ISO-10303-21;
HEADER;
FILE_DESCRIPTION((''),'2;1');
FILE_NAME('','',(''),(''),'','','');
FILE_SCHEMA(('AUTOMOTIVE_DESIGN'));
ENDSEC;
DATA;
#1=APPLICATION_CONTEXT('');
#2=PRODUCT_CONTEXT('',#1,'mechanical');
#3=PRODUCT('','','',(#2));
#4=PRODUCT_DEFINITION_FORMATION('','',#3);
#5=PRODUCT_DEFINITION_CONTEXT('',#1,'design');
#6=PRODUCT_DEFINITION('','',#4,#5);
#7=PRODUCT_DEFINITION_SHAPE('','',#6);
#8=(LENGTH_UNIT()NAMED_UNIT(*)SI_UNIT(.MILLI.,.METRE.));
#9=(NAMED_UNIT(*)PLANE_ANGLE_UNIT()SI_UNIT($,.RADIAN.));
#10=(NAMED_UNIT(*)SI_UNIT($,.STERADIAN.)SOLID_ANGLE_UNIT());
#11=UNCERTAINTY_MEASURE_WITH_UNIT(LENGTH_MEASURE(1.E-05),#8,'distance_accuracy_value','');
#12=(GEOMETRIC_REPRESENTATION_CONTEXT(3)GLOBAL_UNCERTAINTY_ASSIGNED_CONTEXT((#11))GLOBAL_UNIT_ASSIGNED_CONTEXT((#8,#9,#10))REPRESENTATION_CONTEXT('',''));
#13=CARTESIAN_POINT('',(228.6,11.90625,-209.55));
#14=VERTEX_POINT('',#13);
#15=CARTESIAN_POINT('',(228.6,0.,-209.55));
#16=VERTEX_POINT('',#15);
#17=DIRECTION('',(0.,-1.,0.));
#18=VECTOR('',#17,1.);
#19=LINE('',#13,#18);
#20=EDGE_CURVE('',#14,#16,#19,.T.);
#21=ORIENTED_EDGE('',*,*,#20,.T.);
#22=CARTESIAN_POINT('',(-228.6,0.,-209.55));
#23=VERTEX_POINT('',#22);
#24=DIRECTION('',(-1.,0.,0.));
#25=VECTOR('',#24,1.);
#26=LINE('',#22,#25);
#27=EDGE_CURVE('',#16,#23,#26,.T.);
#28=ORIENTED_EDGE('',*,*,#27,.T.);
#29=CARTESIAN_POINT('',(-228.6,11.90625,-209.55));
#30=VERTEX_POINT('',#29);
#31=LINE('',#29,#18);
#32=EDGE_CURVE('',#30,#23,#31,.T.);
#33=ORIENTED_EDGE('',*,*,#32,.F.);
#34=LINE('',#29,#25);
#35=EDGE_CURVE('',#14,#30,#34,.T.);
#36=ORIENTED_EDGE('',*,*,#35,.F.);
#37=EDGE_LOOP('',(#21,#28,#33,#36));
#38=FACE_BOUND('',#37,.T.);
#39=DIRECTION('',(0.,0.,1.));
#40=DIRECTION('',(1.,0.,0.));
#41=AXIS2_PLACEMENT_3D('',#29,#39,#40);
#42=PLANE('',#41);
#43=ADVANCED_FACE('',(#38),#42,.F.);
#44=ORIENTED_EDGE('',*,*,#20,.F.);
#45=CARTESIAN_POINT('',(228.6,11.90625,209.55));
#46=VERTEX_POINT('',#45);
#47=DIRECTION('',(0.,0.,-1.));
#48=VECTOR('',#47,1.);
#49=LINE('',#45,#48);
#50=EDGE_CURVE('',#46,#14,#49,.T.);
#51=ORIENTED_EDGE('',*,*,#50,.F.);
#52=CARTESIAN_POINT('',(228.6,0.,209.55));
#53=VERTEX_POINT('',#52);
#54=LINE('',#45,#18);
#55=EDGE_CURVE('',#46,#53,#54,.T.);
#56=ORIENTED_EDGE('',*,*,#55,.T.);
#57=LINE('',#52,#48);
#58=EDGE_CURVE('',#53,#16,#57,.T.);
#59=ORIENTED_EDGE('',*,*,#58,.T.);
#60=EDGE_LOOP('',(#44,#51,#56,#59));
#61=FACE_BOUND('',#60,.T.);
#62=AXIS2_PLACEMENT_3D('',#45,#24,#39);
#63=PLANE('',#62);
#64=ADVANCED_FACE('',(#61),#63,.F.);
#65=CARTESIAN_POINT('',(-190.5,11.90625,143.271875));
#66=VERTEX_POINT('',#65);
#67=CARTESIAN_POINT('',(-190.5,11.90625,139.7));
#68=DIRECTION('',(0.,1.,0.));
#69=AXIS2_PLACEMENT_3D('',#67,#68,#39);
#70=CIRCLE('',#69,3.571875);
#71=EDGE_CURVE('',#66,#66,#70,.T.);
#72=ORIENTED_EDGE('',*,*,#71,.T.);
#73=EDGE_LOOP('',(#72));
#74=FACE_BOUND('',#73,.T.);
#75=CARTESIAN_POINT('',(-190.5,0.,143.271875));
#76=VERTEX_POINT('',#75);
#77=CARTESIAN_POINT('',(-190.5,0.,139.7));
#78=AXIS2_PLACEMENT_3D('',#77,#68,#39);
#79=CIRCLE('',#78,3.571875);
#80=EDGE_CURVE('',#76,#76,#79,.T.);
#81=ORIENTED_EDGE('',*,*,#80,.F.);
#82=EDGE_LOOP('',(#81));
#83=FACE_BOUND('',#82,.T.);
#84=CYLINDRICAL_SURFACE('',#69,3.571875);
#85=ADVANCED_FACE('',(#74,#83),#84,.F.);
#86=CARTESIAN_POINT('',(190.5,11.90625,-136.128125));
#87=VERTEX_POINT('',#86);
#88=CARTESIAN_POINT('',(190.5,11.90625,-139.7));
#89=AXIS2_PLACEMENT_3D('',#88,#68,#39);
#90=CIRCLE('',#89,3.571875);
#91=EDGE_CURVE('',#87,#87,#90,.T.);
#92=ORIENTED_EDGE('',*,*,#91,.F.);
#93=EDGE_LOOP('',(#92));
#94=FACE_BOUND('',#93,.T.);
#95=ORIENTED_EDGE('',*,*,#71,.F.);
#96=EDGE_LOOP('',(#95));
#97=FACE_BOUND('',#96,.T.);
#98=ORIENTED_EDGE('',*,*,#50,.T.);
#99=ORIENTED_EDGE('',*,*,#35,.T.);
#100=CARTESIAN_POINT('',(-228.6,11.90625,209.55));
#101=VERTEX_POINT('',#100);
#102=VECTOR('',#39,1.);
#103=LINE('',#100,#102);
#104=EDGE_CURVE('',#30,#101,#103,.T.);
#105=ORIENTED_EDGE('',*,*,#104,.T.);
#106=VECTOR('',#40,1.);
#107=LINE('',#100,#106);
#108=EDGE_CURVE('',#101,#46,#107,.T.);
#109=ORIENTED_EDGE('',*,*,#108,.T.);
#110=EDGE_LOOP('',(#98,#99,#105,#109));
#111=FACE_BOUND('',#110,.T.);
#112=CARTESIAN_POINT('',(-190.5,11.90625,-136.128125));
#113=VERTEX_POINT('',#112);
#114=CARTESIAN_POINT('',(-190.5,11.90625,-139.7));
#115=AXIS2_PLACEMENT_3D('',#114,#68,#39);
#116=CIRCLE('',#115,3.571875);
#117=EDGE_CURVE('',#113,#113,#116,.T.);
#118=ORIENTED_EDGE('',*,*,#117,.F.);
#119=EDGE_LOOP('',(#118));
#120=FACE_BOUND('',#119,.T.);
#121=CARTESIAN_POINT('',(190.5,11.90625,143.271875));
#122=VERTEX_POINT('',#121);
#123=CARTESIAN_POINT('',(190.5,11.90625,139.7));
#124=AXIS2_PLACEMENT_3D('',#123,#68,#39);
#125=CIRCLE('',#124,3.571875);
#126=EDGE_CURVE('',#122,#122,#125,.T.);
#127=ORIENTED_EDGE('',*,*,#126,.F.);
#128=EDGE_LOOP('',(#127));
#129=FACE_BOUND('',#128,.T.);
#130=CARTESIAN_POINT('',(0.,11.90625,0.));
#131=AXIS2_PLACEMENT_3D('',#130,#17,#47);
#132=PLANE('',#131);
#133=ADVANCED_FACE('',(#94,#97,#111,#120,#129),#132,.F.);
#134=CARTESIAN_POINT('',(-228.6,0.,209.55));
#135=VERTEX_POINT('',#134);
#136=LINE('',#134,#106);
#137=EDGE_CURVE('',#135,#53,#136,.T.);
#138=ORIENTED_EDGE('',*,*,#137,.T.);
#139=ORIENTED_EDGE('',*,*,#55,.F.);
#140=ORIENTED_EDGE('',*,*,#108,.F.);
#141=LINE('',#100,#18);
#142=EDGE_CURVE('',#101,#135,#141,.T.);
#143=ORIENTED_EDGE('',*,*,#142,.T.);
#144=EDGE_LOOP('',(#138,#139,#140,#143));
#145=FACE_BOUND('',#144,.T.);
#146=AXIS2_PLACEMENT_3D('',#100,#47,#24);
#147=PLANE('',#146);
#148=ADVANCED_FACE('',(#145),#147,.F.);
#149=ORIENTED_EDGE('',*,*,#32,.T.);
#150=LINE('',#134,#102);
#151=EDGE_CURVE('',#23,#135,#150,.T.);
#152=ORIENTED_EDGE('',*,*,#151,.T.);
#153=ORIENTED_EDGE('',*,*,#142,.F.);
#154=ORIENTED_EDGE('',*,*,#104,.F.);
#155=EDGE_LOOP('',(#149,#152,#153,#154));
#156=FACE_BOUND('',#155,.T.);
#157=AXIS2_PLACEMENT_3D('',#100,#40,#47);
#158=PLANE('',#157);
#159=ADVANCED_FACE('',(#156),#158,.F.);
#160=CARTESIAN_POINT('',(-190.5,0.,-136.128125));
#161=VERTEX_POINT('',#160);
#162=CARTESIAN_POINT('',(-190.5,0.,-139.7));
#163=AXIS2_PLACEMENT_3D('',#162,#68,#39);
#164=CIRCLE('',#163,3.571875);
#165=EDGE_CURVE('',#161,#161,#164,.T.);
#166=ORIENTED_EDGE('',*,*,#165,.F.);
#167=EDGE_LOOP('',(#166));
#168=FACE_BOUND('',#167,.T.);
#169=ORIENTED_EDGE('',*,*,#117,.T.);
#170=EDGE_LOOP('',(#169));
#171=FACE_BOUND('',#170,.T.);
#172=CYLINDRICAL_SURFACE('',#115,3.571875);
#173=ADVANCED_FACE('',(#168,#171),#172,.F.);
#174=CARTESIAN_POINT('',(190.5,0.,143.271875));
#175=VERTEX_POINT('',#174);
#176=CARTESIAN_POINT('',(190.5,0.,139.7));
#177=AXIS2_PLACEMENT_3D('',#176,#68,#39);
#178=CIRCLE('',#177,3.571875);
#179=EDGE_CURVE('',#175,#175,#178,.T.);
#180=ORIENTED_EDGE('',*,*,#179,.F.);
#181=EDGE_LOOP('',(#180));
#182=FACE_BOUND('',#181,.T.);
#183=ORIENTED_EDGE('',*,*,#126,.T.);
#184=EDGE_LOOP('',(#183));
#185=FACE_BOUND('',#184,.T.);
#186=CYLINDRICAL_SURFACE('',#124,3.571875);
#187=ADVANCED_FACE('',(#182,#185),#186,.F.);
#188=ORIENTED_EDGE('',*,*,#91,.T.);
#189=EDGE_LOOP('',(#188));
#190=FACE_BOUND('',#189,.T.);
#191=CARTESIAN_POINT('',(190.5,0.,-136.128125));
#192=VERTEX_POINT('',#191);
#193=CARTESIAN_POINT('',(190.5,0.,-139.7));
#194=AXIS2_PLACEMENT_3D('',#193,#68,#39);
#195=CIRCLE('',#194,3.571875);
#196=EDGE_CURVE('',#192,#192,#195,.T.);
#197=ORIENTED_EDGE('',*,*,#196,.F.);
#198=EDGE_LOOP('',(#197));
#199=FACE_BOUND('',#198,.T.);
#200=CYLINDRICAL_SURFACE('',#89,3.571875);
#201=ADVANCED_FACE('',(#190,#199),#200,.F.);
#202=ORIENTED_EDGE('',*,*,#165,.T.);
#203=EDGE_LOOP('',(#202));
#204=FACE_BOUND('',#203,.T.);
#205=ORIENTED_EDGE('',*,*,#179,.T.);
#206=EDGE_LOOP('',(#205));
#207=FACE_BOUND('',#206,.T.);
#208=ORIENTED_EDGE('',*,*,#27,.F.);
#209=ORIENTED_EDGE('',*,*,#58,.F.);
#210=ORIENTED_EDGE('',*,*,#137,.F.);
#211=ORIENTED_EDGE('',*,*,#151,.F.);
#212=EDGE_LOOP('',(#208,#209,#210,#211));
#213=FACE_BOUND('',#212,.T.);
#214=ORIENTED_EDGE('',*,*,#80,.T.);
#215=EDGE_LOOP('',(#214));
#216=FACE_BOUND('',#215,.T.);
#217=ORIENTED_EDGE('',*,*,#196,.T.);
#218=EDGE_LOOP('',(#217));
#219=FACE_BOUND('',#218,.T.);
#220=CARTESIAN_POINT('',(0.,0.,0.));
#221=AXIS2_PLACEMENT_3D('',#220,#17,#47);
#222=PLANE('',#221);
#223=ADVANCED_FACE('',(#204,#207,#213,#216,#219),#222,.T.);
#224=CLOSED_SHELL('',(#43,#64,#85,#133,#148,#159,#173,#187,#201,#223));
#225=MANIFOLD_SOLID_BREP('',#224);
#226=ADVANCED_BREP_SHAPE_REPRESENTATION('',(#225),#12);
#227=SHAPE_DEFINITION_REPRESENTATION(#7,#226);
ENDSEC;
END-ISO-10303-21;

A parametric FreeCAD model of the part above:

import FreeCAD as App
import Part
import Sketcher
Q = App.Units.Quantity


def add_polygon(sketch, points):
    """Adds a closed chain of lines whose ends are joined by coincident constraints."""
    first, n = sketch.GeometryCount, len(points)
    for a, b in zip(points, points[1:] + points[:1]):
        sketch.addGeometry(Part.LineSegment(App.Vector(*a, 0), App.Vector(*b, 0)), False)
    for i in range(n):
        sketch.addConstraint(Sketcher.Constraint("Coincident", first + i, 2, first + (i + 1) % n, 1))

doc = App.newDocument("Part")
params = doc.addObject("Spreadsheet::Sheet", "Params")
for row, (alias, value) in enumerate([
    ("sketch1_width", "18 in"),
    ("sketch1_height", "16.5 in"),
    ("pad1_length", "0.46875 in"),
    ("sketch2_diameter", "0.28125 in"),
    ("hole_diameter", "0.28125 in"),
], start=1):
    params.set(f"A{row}", alias)
    params.set(f"B{row}", "=" + value)
    params.setAlias(f"B{row}", alias)

body = doc.addObject("PartDesign::Body", "Body")

# Sketch on XZ plane
sketch1 = body.newObject("Sketcher::SketchObject", "Sketch")
sketch1.AttachmentSupport = (doc.getObject("XZ_Plane"), [""])
sketch1.MapMode = "FlatFace"
add_polygon(sketch1, [(-228.6, -209.55), (-228.6, 209.55), (228.6, 209.55), (228.6, -209.55)])  # lines 0-3
sketch1.addConstraint(Sketcher.Constraint("Vertical", 0))
sketch1.addConstraint(Sketcher.Constraint("Horizontal", 1))
sketch1.addConstraint(Sketcher.Constraint("Vertical", 2))
sketch1.addConstraint(Sketcher.Constraint("Horizontal", 3))
sketch1.addConstraint(Sketcher.Constraint("Symmetric", 0, 2, 2, 2, -1, 1))
sketch1.addConstraint(Sketcher.Constraint("DistanceX", 1, 1, 1, 2, Q("18 in")))
sketch1.addConstraint(Sketcher.Constraint("DistanceY", 0, 1, 0, 2, Q("16.5 in")))
sketch1.setExpression("Constraints[9]", "Params.sketch1_width")
sketch1.setExpression("Constraints[10]", "Params.sketch1_height")
pad1 = body.newObject("PartDesign::Pad", "Pad")
pad1.Profile = sketch1
pad1.setExpression("Length", "Params.pad1_length")
pad1.Reversed = True

# Sketch on XZ plane
sketch2 = body.newObject("Sketcher::SketchObject", "Sketch001")
sketch2.AttachmentSupport = (doc.getObject("XZ_Plane"), [""])
sketch2.MapMode = "FlatFace"
sketch2.AttachmentOffset = App.Placement(App.Vector(0, 0, -0.46875 * 25.4), App.Rotation())
sketch2.addGeometry(Part.Circle(App.Vector(-190.5, -139.7, 0), App.Vector(0, 0, 1), 3.571875), False)
sketch2.addGeometry(Part.Circle(App.Vector(190.5, -139.7, 0), App.Vector(0, 0, 1), 3.571875), False)
sketch2.addGeometry(Part.Circle(App.Vector(190.5, 139.7, 0), App.Vector(0, 0, 1), 3.571875), False)
sketch2.addGeometry(Part.Circle(App.Vector(-190.5, 139.7, 0), App.Vector(0, 0, 1), 3.571875), False)
sketch2.addConstraint(Sketcher.Constraint("Equal", 0, 1))
sketch2.addConstraint(Sketcher.Constraint("Equal", 1, 2))
sketch2.addConstraint(Sketcher.Constraint("Equal", 2, 3))
sketch2.addConstraint(Sketcher.Constraint("Symmetric", 0, 3, 2, 3, -1, 1))
sketch2.addConstraint(Sketcher.Constraint("Symmetric", 1, 3, 3, 3, -1, 1))
sketch2.addConstraint(Sketcher.Constraint("Symmetric", 0, 3, 1, 3, -2))
sketch2.addConstraint(Sketcher.Constraint("Diameter", 0, Q("0.28125 in")))
sketch2.addConstraint(Sketcher.Constraint("DistanceX", 0, 3, 1, 3, Q("15 in")))
sketch2.addConstraint(Sketcher.Constraint("DistanceY", 1, 3, 2, 3, Q("11 in")))
sketch2.setExpression("Constraints[6]", "Params.sketch2_diameter")
doc.recompute()
hole = body.newObject("PartDesign::Hole", "Hole")
hole.Profile = sketch2
hole.ThreadType = "None"
hole.setExpression("Diameter", "Params.hole_diameter")
hole.DepthType = "ThroughAll"
hole.Reversed = True

doc.recompute()
